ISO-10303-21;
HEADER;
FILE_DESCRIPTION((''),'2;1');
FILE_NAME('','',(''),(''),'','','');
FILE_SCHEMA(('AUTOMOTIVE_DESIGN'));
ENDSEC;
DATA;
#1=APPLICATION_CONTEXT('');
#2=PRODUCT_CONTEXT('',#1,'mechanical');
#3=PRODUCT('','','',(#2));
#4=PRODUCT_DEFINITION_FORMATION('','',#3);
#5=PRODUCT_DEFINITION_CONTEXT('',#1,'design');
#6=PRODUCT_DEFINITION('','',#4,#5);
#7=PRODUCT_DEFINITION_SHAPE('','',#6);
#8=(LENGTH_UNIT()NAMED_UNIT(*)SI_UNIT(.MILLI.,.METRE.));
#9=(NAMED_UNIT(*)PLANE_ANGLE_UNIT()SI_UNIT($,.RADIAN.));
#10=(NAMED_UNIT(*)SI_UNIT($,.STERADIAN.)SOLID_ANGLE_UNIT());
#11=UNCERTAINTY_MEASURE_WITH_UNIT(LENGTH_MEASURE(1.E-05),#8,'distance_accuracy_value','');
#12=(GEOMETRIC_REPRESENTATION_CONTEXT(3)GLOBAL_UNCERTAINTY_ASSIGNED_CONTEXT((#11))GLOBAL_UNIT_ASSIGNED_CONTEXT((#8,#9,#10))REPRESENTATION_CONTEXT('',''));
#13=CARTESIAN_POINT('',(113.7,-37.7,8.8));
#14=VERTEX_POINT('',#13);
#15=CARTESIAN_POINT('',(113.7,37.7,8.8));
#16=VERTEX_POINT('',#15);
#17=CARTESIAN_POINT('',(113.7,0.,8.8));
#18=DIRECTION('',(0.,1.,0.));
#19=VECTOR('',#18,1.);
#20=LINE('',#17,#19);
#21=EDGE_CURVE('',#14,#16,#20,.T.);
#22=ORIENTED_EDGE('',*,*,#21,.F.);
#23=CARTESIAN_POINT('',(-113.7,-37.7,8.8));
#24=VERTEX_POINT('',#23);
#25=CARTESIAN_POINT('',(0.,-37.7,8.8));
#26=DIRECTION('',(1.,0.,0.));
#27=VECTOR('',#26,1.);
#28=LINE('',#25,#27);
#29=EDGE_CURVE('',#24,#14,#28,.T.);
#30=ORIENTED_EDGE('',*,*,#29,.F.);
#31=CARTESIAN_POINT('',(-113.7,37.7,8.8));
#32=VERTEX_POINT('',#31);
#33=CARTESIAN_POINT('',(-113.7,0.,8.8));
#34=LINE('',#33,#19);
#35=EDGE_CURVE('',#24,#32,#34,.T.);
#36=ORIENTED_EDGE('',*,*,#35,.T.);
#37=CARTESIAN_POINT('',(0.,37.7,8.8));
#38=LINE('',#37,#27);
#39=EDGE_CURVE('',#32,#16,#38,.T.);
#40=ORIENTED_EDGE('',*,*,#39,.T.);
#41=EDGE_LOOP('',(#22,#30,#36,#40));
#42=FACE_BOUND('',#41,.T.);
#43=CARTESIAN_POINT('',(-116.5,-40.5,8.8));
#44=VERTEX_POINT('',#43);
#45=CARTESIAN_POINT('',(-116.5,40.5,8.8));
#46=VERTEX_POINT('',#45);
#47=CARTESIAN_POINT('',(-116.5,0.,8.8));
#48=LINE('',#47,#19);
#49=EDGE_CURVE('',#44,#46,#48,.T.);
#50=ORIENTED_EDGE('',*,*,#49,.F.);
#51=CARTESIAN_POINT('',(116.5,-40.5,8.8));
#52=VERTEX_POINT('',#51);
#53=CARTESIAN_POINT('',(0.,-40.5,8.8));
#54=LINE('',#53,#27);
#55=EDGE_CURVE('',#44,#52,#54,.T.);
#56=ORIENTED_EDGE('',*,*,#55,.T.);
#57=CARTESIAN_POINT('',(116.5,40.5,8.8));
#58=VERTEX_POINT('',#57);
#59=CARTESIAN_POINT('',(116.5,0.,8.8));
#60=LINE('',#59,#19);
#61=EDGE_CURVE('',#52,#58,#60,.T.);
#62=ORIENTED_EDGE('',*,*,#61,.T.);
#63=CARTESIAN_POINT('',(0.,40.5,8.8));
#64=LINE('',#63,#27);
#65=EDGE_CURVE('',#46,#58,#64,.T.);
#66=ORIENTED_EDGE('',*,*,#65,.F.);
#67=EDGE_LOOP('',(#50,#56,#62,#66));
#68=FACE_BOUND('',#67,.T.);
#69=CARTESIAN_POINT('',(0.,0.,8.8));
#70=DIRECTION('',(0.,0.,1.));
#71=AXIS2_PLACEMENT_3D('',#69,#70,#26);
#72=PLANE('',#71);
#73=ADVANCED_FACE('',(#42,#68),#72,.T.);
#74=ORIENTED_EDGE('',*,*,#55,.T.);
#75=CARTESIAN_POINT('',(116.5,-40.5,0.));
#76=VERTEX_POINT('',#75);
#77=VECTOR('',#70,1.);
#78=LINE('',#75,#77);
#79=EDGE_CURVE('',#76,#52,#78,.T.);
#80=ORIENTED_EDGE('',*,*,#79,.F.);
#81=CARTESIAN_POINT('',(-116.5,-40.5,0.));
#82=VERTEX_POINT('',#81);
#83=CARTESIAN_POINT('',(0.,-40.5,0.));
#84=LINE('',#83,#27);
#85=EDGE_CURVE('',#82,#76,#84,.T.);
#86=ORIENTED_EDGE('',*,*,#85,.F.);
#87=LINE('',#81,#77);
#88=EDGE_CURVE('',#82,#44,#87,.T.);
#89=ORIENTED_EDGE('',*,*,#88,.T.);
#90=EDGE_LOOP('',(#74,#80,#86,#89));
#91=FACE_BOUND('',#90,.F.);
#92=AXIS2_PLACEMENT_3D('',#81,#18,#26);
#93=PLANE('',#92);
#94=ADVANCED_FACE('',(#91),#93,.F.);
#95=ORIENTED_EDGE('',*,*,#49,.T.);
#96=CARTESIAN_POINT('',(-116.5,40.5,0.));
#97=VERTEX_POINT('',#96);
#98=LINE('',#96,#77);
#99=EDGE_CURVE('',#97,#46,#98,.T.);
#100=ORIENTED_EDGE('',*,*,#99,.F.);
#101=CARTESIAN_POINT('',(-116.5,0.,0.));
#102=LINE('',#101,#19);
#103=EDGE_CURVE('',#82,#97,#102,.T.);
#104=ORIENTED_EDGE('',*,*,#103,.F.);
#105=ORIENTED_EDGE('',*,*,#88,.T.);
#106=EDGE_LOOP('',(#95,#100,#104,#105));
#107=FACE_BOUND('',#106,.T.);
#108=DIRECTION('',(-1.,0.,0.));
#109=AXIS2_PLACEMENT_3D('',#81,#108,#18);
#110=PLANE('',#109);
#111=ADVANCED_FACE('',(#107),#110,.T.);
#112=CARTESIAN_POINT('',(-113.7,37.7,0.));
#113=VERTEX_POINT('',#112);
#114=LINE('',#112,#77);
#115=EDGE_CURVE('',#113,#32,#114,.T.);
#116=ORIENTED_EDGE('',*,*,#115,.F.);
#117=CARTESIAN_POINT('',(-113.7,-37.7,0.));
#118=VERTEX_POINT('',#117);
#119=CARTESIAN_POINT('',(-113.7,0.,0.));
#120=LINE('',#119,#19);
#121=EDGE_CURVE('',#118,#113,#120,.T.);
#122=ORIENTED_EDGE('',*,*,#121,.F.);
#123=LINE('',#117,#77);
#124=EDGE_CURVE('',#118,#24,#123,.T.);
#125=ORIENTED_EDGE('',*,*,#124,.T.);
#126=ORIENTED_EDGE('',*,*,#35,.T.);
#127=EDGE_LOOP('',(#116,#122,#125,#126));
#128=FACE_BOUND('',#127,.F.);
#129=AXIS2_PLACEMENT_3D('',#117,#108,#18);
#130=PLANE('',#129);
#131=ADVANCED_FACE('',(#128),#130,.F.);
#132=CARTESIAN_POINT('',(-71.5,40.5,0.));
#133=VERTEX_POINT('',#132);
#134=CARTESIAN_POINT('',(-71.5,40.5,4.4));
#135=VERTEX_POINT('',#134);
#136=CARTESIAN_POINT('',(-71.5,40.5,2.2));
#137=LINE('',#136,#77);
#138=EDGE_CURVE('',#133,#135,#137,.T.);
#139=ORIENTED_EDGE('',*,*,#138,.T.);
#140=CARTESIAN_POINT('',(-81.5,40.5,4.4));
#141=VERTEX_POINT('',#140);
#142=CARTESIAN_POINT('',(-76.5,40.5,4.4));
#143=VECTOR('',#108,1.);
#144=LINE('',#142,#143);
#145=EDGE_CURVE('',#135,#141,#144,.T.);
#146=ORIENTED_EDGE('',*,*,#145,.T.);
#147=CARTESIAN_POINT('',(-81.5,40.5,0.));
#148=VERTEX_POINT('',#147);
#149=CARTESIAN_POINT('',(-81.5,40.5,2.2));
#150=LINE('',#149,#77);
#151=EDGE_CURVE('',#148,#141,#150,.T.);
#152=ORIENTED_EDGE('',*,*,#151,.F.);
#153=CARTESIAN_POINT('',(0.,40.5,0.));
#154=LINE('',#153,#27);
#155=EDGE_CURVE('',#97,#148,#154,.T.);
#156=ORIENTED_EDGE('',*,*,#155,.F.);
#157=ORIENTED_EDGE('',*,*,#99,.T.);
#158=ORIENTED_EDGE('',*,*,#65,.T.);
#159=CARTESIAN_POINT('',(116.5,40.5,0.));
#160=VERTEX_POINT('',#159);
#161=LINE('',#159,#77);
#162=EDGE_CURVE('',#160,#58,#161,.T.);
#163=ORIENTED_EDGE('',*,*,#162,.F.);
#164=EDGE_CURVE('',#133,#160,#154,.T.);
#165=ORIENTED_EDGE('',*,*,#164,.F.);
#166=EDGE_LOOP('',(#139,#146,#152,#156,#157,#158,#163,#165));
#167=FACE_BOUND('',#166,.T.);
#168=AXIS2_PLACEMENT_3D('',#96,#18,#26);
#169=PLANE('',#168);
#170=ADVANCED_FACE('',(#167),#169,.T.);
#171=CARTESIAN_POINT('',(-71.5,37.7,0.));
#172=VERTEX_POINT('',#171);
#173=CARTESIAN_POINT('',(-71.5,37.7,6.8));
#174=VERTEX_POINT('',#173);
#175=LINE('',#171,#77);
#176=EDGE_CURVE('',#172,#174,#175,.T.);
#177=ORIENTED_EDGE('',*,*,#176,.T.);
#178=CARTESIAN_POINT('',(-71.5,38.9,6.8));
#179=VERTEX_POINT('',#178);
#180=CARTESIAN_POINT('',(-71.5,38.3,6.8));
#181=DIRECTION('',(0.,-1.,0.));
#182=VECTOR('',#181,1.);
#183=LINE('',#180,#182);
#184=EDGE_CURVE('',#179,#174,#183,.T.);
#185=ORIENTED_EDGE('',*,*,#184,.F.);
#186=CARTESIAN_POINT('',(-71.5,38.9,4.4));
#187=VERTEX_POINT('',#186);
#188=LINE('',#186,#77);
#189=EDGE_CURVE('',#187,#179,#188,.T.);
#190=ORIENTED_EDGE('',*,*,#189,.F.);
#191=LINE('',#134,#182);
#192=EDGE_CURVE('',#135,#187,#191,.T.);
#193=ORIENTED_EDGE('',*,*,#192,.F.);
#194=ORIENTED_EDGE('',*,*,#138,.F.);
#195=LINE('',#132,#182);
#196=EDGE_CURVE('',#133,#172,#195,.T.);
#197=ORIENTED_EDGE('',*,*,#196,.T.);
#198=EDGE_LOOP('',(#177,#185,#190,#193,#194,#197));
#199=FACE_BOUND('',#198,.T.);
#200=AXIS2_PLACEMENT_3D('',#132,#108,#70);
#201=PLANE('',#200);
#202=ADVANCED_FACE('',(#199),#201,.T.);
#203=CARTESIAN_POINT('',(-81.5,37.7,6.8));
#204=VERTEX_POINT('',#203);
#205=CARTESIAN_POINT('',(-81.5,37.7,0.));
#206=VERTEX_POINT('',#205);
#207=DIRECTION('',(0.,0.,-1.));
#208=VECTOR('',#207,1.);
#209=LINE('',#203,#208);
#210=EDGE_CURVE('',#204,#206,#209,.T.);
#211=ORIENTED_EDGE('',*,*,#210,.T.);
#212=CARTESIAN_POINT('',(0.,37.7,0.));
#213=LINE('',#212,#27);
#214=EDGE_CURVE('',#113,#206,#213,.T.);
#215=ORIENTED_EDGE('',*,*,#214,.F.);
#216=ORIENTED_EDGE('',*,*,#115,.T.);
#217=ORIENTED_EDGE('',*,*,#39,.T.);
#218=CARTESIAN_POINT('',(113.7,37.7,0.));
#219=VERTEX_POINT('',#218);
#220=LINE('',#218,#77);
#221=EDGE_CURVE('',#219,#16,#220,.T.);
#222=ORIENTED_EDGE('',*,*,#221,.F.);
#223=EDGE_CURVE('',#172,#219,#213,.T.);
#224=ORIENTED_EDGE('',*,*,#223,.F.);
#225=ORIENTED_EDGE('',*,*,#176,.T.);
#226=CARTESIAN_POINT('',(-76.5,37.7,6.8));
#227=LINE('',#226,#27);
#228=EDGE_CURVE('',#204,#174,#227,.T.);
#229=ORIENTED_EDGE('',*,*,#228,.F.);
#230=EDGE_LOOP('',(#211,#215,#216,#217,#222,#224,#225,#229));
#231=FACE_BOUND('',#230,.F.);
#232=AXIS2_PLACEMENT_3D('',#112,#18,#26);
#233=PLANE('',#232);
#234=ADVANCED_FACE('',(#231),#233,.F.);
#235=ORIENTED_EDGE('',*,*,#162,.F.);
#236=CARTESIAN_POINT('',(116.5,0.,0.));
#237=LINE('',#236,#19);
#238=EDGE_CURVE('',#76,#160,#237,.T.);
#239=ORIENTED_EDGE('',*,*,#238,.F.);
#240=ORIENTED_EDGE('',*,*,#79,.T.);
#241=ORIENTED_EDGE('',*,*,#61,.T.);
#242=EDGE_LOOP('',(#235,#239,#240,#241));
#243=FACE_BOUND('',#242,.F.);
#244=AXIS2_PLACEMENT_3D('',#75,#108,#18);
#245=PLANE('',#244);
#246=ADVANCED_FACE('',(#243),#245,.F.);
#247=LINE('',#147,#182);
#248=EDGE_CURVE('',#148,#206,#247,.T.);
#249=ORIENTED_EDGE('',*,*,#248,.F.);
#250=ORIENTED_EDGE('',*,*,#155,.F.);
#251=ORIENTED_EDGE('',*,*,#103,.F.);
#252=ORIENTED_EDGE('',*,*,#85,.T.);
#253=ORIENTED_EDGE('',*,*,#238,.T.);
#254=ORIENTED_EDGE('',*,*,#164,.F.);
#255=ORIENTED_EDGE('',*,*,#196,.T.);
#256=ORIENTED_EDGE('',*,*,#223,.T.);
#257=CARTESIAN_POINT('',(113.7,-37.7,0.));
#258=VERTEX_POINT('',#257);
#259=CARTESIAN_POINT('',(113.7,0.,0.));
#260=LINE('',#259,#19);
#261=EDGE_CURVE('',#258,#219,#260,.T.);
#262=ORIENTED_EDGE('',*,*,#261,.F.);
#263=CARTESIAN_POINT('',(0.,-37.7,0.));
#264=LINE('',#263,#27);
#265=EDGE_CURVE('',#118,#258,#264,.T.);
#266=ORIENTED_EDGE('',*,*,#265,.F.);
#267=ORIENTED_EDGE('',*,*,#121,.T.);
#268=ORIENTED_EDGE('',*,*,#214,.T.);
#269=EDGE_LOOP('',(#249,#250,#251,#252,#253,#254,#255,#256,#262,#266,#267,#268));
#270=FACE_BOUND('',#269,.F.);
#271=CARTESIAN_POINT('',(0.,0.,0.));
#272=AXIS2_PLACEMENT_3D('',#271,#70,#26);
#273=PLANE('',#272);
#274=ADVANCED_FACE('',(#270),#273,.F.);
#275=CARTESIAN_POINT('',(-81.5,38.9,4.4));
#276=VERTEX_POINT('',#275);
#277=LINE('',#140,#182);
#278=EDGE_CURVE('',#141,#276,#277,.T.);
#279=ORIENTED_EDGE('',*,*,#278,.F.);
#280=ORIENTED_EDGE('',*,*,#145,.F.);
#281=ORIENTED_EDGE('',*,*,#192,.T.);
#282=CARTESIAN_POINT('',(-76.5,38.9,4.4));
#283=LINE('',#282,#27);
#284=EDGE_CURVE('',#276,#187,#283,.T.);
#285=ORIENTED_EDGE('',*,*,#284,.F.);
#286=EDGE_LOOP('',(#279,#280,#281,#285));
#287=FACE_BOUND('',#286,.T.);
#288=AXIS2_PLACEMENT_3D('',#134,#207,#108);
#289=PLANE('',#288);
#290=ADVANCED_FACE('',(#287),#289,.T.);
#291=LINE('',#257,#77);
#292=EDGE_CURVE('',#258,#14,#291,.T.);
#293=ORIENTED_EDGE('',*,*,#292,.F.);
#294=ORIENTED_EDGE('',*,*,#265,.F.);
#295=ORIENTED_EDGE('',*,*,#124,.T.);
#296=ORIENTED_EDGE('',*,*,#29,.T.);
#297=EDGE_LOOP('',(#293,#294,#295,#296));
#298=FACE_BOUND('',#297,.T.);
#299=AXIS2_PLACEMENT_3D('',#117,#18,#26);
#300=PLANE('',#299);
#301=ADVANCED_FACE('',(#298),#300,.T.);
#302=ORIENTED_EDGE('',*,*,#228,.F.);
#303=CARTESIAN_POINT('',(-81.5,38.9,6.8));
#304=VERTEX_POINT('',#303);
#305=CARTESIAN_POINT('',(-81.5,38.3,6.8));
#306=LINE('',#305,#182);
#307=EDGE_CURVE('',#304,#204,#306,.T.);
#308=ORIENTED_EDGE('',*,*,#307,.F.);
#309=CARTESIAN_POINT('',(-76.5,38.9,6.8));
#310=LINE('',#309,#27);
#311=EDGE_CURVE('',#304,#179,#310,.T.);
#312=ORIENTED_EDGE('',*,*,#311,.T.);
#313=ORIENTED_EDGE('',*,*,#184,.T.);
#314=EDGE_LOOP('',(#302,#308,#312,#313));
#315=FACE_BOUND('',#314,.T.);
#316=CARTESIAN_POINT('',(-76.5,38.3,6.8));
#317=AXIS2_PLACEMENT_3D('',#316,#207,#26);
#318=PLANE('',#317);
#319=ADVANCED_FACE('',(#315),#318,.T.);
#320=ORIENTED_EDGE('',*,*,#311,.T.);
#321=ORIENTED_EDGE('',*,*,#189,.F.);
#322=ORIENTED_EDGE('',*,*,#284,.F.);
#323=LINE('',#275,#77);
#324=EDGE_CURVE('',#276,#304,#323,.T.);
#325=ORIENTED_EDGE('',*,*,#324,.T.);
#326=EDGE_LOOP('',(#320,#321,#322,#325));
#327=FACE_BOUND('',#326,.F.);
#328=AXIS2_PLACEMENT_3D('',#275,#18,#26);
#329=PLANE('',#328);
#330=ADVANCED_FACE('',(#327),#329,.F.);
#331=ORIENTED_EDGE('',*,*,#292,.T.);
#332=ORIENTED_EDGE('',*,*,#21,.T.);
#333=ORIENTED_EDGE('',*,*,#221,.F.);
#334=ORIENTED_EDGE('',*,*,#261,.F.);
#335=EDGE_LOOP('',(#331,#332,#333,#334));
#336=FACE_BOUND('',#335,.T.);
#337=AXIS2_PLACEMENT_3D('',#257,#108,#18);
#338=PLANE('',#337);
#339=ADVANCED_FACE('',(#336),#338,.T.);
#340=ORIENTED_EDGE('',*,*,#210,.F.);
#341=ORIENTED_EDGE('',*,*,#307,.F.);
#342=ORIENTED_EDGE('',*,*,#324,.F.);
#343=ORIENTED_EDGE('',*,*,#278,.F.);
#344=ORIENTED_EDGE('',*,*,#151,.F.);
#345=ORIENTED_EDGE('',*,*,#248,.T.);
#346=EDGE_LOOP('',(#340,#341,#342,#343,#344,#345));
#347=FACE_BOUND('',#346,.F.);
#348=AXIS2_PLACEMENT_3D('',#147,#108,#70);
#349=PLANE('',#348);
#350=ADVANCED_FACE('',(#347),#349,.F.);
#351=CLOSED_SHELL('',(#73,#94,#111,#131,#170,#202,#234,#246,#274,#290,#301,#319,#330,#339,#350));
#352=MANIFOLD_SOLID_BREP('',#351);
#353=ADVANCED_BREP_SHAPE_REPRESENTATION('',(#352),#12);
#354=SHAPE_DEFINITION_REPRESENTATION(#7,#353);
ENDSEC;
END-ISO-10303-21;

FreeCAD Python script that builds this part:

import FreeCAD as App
import Part
import Sketcher

V = App.Vector


def add_polygon(sketch, points):
    """Adds a closed chain of lines whose ends are joined by coincident constraints."""
    first, n = sketch.GeometryCount, len(points)
    for a, b in zip(points, points[1:] + points[:1]):
        sketch.addGeometry(Part.LineSegment(App.Vector(*a, 0), App.Vector(*b, 0)), False)
    for i in range(n):
        sketch.addConstraint(Sketcher.Constraint("Coincident", first + i, 2, first + (i + 1) % n, 1))

doc = App.newDocument("Part")
body = doc.addObject("PartDesign::Body", "Body")

# Sketch on XY plane
sketch1 = body.newObject("Sketcher::SketchObject", "Sketch")
sketch1.AttachmentSupport = (doc.getObject("XY_Plane"), [""])
sketch1.MapMode = "FlatFace"
add_polygon(sketch1, [(-116.5, 40.5), (-116.5, -40.5), (116.5, -40.5), (116.5, 40.5)])  # lines 0-3
add_polygon(sketch1, [(113.7, -37.7), (-113.7, -37.7), (-113.7, 37.7), (113.7, 37.7)])  # lines 4-7
sketch1.addConstraint([
    Sketcher.Constraint("Vertical", 0),
    Sketcher.Constraint("Horizontal", 1),
    Sketcher.Constraint("Vertical", 2),
    Sketcher.Constraint("Horizontal", 3),
    Sketcher.Constraint("Horizontal", 4),
    Sketcher.Constraint("Vertical", 5),
    Sketcher.Constraint("Horizontal", 6),
    Sketcher.Constraint("Vertical", 7),
    Sketcher.Constraint("Symmetric", 0, 2, 2, 2, -1, 1),
    Sketcher.Constraint("Symmetric", 4, 2, 6, 2, -1, 1),
    Sketcher.Constraint("DistanceX", 1, 1, 1, 2, 233.0),
    Sketcher.Constraint("DistanceY", 0, 2, 0, 1, 81.0),
    Sketcher.Constraint("DistanceX", 4, 2, 4, 1, 227.4),
    Sketcher.Constraint("DistanceY", 5, 1, 5, 2, 75.4),
])
pad1 = body.newObject("PartDesign::Pad", "Pad")
pad1.Profile = sketch1
pad1.Length = 8.8

# Sketch on XZ plane
sketch2 = body.newObject("Sketcher::SketchObject", "Sketch001")
sketch2.AttachmentSupport = (doc.getObject("XZ_Plane"), [""])
sketch2.MapMode = "FlatFace"
sketch2.AttachmentOffset = App.Placement(V(0, 0, -40.5), App.Rotation())
add_polygon(sketch2, [(-71.5, 4.4), (-71.5, 0), (-81.5, 0), (-81.5, 4.4)])  # lines 0-3
sketch2.addConstraint([
    Sketcher.Constraint("Vertical", 0),
    Sketcher.Constraint("Horizontal", 1),
    Sketcher.Constraint("Vertical", 2),
    Sketcher.Constraint("Horizontal", 3),
    Sketcher.Constraint("PointOnObject", 0, 2, -1),
    Sketcher.Constraint("DistanceX", 1, 2, 1, 1, 10.0),
    Sketcher.Constraint("DistanceY", 0, 2, 0, 1, 4.4),
    Sketcher.Constraint("DistanceX", 0, 2, -1, 1, 71.5),
])
pocket1 = body.newObject("PartDesign::Pocket", "Pocket")
pocket1.Profile = sketch2
pocket1.Length = 25
pocket1.Reversed = True

# Sketch on XY plane
sketch3 = body.newObject("Sketcher::SketchObject", "Sketch002")
sketch3.AttachmentSupport = (doc.getObject("XY_Plane"), [""])
sketch3.MapMode = "FlatFace"
sketch3.AttachmentOffset = App.Placement(V(0, 0, 4.4), App.Rotation())
add_polygon(sketch3, [(-81.5, 37.7), (-81.5, 38.9), (-71.5, 38.9), (-71.5, 37.7)])  # lines 0-3
sketch3.addConstraint([
    Sketcher.Constraint("Vertical", 0),
    Sketcher.Constraint("Horizontal", 1),
    Sketcher.Constraint("Vertical", 2),
    Sketcher.Constraint("Horizontal", 3),
    Sketcher.Constraint("DistanceX", 1, 1, 1, 2, 10.0),
    Sketcher.Constraint("DistanceY", 0, 1, 0, 2, 1.2),
    Sketcher.Constraint("DistanceX", 0, 2, -1, 1, 81.5),
    Sketcher.Constraint("DistanceY", -1, 1, 0, 2, 38.9),
])
pocket2 = body.newObject("PartDesign::Pocket", "Pocket001")
pocket2.Profile = sketch3
pocket2.Length = 2.4
pocket2.Reversed = True

doc.recompute()
